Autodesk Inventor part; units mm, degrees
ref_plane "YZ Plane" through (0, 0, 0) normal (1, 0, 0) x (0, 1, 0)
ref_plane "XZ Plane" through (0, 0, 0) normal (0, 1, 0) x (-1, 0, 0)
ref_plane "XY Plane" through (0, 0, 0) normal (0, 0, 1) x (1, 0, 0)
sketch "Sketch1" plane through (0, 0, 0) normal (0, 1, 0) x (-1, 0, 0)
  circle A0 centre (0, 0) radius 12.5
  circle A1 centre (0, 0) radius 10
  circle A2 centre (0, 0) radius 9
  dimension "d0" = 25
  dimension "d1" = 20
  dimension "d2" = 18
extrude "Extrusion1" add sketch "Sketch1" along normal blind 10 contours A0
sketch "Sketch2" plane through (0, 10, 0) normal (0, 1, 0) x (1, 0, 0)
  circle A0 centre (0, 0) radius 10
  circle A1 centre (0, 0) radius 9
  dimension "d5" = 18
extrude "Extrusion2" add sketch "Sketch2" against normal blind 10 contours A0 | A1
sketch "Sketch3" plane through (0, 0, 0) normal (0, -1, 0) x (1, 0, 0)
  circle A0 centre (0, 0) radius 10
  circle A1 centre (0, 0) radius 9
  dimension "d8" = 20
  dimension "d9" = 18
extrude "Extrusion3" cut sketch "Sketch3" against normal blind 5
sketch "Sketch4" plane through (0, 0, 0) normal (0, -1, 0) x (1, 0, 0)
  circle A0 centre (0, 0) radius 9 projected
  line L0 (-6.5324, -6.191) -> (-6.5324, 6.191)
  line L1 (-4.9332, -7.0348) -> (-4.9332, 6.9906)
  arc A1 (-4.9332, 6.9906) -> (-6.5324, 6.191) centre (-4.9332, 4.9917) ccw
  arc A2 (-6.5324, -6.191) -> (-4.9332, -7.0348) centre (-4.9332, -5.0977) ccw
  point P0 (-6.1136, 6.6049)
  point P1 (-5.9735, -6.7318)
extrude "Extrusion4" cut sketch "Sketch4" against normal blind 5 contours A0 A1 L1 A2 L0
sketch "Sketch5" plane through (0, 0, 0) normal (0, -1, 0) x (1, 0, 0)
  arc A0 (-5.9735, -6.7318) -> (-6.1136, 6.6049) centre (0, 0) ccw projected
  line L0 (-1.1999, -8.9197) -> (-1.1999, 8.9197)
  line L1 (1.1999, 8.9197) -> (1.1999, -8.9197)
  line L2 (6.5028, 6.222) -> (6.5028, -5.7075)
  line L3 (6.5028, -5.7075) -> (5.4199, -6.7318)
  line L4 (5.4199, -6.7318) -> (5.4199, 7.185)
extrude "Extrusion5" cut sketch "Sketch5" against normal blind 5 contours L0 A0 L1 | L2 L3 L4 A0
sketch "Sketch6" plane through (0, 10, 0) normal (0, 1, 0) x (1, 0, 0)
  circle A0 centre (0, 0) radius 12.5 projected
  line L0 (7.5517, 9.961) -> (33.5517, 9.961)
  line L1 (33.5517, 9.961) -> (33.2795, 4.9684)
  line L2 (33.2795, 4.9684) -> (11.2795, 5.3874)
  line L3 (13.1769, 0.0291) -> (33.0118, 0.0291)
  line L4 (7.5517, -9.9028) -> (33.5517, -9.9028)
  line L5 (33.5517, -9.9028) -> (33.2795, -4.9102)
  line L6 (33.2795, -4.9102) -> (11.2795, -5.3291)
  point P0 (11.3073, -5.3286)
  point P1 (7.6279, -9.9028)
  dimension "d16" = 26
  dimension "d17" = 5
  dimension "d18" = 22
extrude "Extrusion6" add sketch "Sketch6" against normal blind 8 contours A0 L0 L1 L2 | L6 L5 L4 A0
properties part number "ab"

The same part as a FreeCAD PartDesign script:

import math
import FreeCAD as App
import Part
import Sketcher
from FreeCAD import Vector
Q = App.Units.Quantity

doc = App.newDocument("Part")
body = doc.addObject("PartDesign::Body", "Body")

# Sketch on XZ plane
sketch1 = doc.addObject("Sketcher::SketchObject", "Sketch")
body.addObject(sketch1)
sketch1.AttachmentSupport = (doc.XZ_Plane, [""])
sketch1.MapMode = "FlatFace"
sketch1.addGeometry(Part.Circle(Vector(0, 0, 0), Vector(0, 0, 1), 12), False)
sketch1.addGeometry(Part.Circle(Vector(0, 0, 0), Vector(0, 0, 1), 10), False)
sketch1.addConstraint(Sketcher.Constraint("Coincident", 0, 3, -1, 1))
sketch1.addConstraint(Sketcher.Constraint("Coincident", 1, 3, -1, 1))
sketch1.addConstraint(Sketcher.Constraint("Diameter", 0, 25.0))
sketch1.addConstraint(Sketcher.Constraint("Diameter", 1, 20.0))
pad1 = doc.addObject("PartDesign::Pad", "Pad")
body.addObject(pad1)
pad1.Profile = sketch1
pad1.Length = 10
pad1.Reversed = True

# Sketch on XZ plane
sketch2 = doc.addObject("Sketcher::SketchObject", "Sketch001")
body.addObject(sketch2)
sketch2.AttachmentSupport = (doc.XZ_Plane, [""])
sketch2.MapMode = "FlatFace"
sketch2.AttachmentOffset = App.Placement(Vector(0, 0, -10), App.Rotation())
sketch2.addGeometry(Part.Circle(Vector(0, 0, 0), Vector(0, 0, 1), 10), False)
sketch2.addConstraint(Sketcher.Constraint("Coincident", 0, 3, -1, 1))
sketch2.addConstraint(Sketcher.Constraint("Diameter", 0, 20.0))
pad2 = doc.addObject("PartDesign::Pad", "Pad001")
body.addObject(pad2)
pad2.Profile = sketch2
pad2.Length = 10

# Sketch on XZ plane
sketch3 = doc.addObject("Sketcher::SketchObject", "Sketch002")
body.addObject(sketch3)
sketch3.AttachmentSupport = (doc.XZ_Plane, [""])
sketch3.MapMode = "FlatFace"
sketch3.addGeometry(Part.Circle(Vector(0, 0, 0), Vector(0, 0, 1), 10), False)
sketch3.addGeometry(Part.Circle(Vector(0, 0, 0), Vector(0, 0, 1), 9), False)
sketch3.addConstraint(Sketcher.Constraint("Coincident", 0, 3, -1, 1))
sketch3.addConstraint(Sketcher.Constraint("Coincident", 1, 3, -1, 1))
sketch3.addConstraint(Sketcher.Constraint("Diameter", 0, 20.0))
sketch3.addConstraint(Sketcher.Constraint("Diameter", 1, 18.0))
pocket1 = doc.addObject("PartDesign::Pocket", "Pocket")
body.addObject(pocket1)
pocket1.Profile = sketch3
pocket1.Length = 5

# Sketch on XZ plane
sketch4 = doc.addObject("Sketcher::SketchObject", "Sketch003")
body.addObject(sketch4)
sketch4.AttachmentSupport = (doc.XZ_Plane, [""])
sketch4.MapMode = "FlatFace"
sketch4.addGeometry(Part.ArcOfCircle(Part.Circle(Vector(0, 0, 0), Vector(0, 0, 1), 9), math.radians(132.79), math.radians(136.54)), False)
sketch4.addGeometry(Part.LineSegment(Vector(-6.5, 6.2, 0), Vector(-6.5, -6.2, 0)), False)
sketch4.addGeometry(Part.ArcOfCircle(Part.Circle(Vector(0, 0, 0), Vector(0, 0, 1), 9), math.radians(-136.54), math.radians(-131.58)), False)
sketch4.addGeometry(Part.ArcOfCircle(Part.Circle(Vector(-4.9, -5.1, 0), Vector(0, 0, 1), 1.9), math.radians(-122), math.radians(-90)), False)
sketch4.addGeometry(Part.LineSegment(Vector(-4.9, -7, 0), Vector(-4.9, 7, 0)), False)
sketch4.addGeometry(Part.ArcOfCircle(Part.Circle(Vector(-4.9, 5, 0), Vector(0, 0, 1), 2), math.radians(90), math.radians(126)), False)
sketch4.addConstraint(Sketcher.Constraint("Coincident", 0, 2, 1, 1))
sketch4.addConstraint(Sketcher.Constraint("Coincident", 1, 2, 2, 1))
sketch4.addConstraint(Sketcher.Constraint("Coincident", 2, 2, 3, 1))
sketch4.addConstraint(Sketcher.Constraint("Coincident", 3, 2, 4, 1))
sketch4.addConstraint(Sketcher.Constraint("Coincident", 4, 2, 5, 1))
sketch4.addConstraint(Sketcher.Constraint("Coincident", 5, 2, 0, 1))
sketch4.addConstraint(Sketcher.Constraint("Vertical", 1))
sketch4.addConstraint(Sketcher.Constraint("Vertical", 4))
sketch4.addConstraint(Sketcher.Constraint("Coincident", 0, 3, -1, 1))
sketch4.addConstraint(Sketcher.Constraint("Coincident", 2, 3, -1, 1))
sketch4.addConstraint(Sketcher.Constraint("Equal", 0, 2))
sketch4.addConstraint(Sketcher.Constraint("Vertical", 3, 3, 5, 3))
sketch4.addConstraint(Sketcher.Constraint("Vertical", 5, 3, 3, 2))
sketch4.addConstraint(Sketcher.Constraint("Radius", 0, 9.0))
sketch4.addConstraint(Sketcher.Constraint("Radius", 5, 1.999))
sketch4.addConstraint(Sketcher.Constraint("Radius", 3, 1.9372))
sketch4.addConstraint(Sketcher.Constraint("DistanceY", 1, 2, 1, 1, 12.382))
sketch4.addConstraint(Sketcher.Constraint("DistanceX", 2, 2, 3, 3, 1.04))
sketch4.addConstraint(Sketcher.Constraint("DistanceY", 4, 1, 4, 2, 14.0254))
sketch4.addConstraint(Sketcher.Constraint("DistanceY", 2, 2, -1, 1, 6.732))
pocket2 = doc.addObject("PartDesign::Pocket", "Pocket001")
body.addObject(pocket2)
pocket2.Profile = sketch4
pocket2.Length = 5

# Sketch on XZ plane
sketch5 = doc.addObject("Sketcher::SketchObject", "Sketch004")
body.addObject(sketch5)
sketch5.AttachmentSupport = (doc.XZ_Plane, [""])
sketch5.MapMode = "FlatFace"
sketch5.addGeometry(Part.LineSegment(Vector(-1.2, 8.9, 0), Vector(-1.2, -8.9, 0)), False)
sketch5.addGeometry(Part.ArcOfCircle(Part.Circle(Vector(0, 0, 0), Vector(0, 0, 1), 9), math.radians(-97.66), math.radians(-82.34)), False)
sketch5.addGeometry(Part.LineSegment(Vector(1.2, -8.9, 0), Vector(1.2, 8.9, 0)), False)
sketch5.addGeometry(Part.ArcOfCircle(Part.Circle(Vector(0, 0, 0), Vector(0, 0, 1), 9), math.radians(82.34), math.radians(97.66)), False)
sketch5.addGeometry(Part.LineSegment(Vector(6.5, -5.7, 0), Vector(6.5, 6.2, 0)), False)
sketch5.addGeometry(Part.ArcOfCircle(Part.Circle(Vector(0, 0, 0), Vector(0, 0, 1), 9), math.radians(43.74), math.radians(52.97)), False)
sketch5.addGeometry(Part.LineSegment(Vector(5.4, 7.2, 0), Vector(5.4, -6.7, 0)), False)
sketch5.addGeometry(Part.LineSegment(Vector(5.4, -6.7, 0), Vector(6.5, -5.7, 0)), False)
sketch5.addConstraint(Sketcher.Constraint("Coincident", 0, 2, 1, 1))
sketch5.addConstraint(Sketcher.Constraint("Coincident", 1, 2, 2, 1))
sketch5.addConstraint(Sketcher.Constraint("Coincident", 2, 2, 3, 1))
sketch5.addConstraint(Sketcher.Constraint("Coincident", 3, 2, 0, 1))
sketch5.addConstraint(Sketcher.Constraint("Coincident", 4, 2, 5, 1))
sketch5.addConstraint(Sketcher.Constraint("Coincident", 5, 2, 6, 1))
sketch5.addConstraint(Sketcher.Constraint("Coincident", 6, 2, 7, 1))
sketch5.addConstraint(Sketcher.Constraint("Coincident", 7, 2, 4, 1))
sketch5.addConstraint(Sketcher.Constraint("Vertical", 0))
sketch5.addConstraint(Sketcher.Constraint("Vertical", 2))
sketch5.addConstraint(Sketcher.Constraint("Vertical", 4))
sketch5.addConstraint(Sketcher.Constraint("Vertical", 6))
sketch5.addConstraint(Sketcher.Constraint("Coincident", 1, 3, -1, 1))
sketch5.addConstraint(Sketcher.Constraint("Coincident", 3, 3, -1, 1))
sketch5.addConstraint(Sketcher.Constraint("Coincident", 5, 3, -1, 1))
sketch5.addConstraint(Sketcher.Constraint("Equal", 1, 3))
sketch5.addConstraint(Sketcher.Constraint("Equal", 3, 5))
sketch5.addConstraint(Sketcher.Constraint("Horizontal", 0, 2, 1, 2))
sketch5.addConstraint(Sketcher.Constraint("Radius", 1, 9.0))
sketch5.addConstraint(Sketcher.Constraint("DistanceX", 0, 2, -1, 1, 1.2))
sketch5.addConstraint(Sketcher.Constraint("DistanceX", -1, 1, 5, 2, 5.42))
sketch5.addConstraint(Sketcher.Constraint("DistanceY", 4, 1, 4, 2, 11.9295))
sketch5.addConstraint(Sketcher.Constraint("DistanceY", 6, 2, 6, 1, 13.9168))
sketch5.addConstraint(Sketcher.Constraint("DistanceY", -1, 1, 4, 2, 6.222))
pocket3 = doc.addObject("PartDesign::Pocket", "Pocket002")
body.addObject(pocket3)
pocket3.Profile = sketch5
pocket3.Length = 5

# Sketch on XZ plane
sketch6 = doc.addObject("Sketcher::SketchObject", "Sketch005")
body.addObject(sketch6)
sketch6.AttachmentSupport = (doc.XZ_Plane, [""])
sketch6.MapMode = "FlatFace"
sketch6.AttachmentOffset = App.Placement(Vector(0, 0, -10), App.Rotation())
sketch6.addGeometry(Part.ArcOfCircle(Part.Circle(Vector(0, 0, 0), Vector(0, 0, 1), 12), math.radians(-53), math.radians(-26)), False)
sketch6.addGeometry(Part.LineSegment(Vector(11, -5, 0), Vector(33, -5, 0)), False)
sketch6.addGeometry(Part.LineSegment(Vector(33, -5, 0), Vector(34, -10, 0)), False)
sketch6.addGeometry(Part.LineSegment(Vector(34, -10, 0), Vector(8, -10, 0)), False)
sketch6.addGeometry(Part.LineSegment(Vector(33, 5, 0), Vector(11, 5, 0)), False)
sketch6.addGeometry(Part.ArcOfCircle(Part.Circle(Vector(0, 0, 0), Vector(0, 0, 1), 12), math.radians(25), math.radians(52)), False)
sketch6.addGeometry(Part.LineSegment(Vector(8, 10, 0), Vector(34, 10, 0)), False)
sketch6.addGeometry(Part.LineSegment(Vector(34, 10, 0), Vector(33, 5, 0)), False)
sketch6.addConstraint(Sketcher.Constraint("Coincident", 0, 2, 1, 1))
sketch6.addConstraint(Sketcher.Constraint("Coincident", 1, 2, 2, 1))
sketch6.addConstraint(Sketcher.Constraint("Coincident", 2, 2, 3, 1))
sketch6.addConstraint(Sketcher.Constraint("Coincident", 3, 2, 0, 1))
sketch6.addConstraint(Sketcher.Constraint("Coincident", 4, 2, 5, 1))
sketch6.addConstraint(Sketcher.Constraint("Coincident", 5, 2, 6, 1))
sketch6.addConstraint(Sketcher.Constraint("Coincident", 6, 2, 7, 1))
sketch6.addConstraint(Sketcher.Constraint("Coincident", 7, 2, 4, 1))
sketch6.addConstraint(Sketcher.Constraint("Horizontal", 3))
sketch6.addConstraint(Sketcher.Constraint("Horizontal", 6))
sketch6.addConstraint(Sketcher.Constraint("Coincident", 0, 3, -1, 1))
sketch6.addConstraint(Sketcher.Constraint("Coincident", 5, 3, -1, 1))
sketch6.addConstraint(Sketcher.Constraint("Equal", 0, 5))
sketch6.addConstraint(Sketcher.Constraint("Vertical", 2, 2, 6, 2))
sketch6.addConstraint(Sketcher.Constraint("Vertical", 1, 2, 7, 2))
sketch6.addConstraint(Sketcher.Constraint("Equal", 2, 7))
sketch6.addConstraint(Sketcher.Constraint("DistanceX", 3, 2, 3, 1, 26.0))
sketch6.addConstraint(Sketcher.Constraint("Distance", 2, 5.0))
sketch6.addConstraint(Sketcher.Constraint("DistanceX", 0, 2, 1, 2, 22.0))
sketch6.addConstraint(Sketcher.Constraint("Radius", 0, 12.5))
sketch6.addConstraint(Sketcher.Constraint("Angle", 1, Q("1.091 deg")))
sketch6.addConstraint(Sketcher.Constraint("Angle", 2, Q("-86.8793 deg")))
sketch6.addConstraint(Sketcher.Constraint("Angle", 4, Q("178.9092 deg")))
sketch6.addConstraint(Sketcher.Constraint("DistanceX", 6, 1, 6, 2, 25.9238))
pad3 = doc.addObject("PartDesign::Pad", "Pad002")
body.addObject(pad3)
pad3.Profile = sketch6
pad3.Length = 8

doc.recompute()
